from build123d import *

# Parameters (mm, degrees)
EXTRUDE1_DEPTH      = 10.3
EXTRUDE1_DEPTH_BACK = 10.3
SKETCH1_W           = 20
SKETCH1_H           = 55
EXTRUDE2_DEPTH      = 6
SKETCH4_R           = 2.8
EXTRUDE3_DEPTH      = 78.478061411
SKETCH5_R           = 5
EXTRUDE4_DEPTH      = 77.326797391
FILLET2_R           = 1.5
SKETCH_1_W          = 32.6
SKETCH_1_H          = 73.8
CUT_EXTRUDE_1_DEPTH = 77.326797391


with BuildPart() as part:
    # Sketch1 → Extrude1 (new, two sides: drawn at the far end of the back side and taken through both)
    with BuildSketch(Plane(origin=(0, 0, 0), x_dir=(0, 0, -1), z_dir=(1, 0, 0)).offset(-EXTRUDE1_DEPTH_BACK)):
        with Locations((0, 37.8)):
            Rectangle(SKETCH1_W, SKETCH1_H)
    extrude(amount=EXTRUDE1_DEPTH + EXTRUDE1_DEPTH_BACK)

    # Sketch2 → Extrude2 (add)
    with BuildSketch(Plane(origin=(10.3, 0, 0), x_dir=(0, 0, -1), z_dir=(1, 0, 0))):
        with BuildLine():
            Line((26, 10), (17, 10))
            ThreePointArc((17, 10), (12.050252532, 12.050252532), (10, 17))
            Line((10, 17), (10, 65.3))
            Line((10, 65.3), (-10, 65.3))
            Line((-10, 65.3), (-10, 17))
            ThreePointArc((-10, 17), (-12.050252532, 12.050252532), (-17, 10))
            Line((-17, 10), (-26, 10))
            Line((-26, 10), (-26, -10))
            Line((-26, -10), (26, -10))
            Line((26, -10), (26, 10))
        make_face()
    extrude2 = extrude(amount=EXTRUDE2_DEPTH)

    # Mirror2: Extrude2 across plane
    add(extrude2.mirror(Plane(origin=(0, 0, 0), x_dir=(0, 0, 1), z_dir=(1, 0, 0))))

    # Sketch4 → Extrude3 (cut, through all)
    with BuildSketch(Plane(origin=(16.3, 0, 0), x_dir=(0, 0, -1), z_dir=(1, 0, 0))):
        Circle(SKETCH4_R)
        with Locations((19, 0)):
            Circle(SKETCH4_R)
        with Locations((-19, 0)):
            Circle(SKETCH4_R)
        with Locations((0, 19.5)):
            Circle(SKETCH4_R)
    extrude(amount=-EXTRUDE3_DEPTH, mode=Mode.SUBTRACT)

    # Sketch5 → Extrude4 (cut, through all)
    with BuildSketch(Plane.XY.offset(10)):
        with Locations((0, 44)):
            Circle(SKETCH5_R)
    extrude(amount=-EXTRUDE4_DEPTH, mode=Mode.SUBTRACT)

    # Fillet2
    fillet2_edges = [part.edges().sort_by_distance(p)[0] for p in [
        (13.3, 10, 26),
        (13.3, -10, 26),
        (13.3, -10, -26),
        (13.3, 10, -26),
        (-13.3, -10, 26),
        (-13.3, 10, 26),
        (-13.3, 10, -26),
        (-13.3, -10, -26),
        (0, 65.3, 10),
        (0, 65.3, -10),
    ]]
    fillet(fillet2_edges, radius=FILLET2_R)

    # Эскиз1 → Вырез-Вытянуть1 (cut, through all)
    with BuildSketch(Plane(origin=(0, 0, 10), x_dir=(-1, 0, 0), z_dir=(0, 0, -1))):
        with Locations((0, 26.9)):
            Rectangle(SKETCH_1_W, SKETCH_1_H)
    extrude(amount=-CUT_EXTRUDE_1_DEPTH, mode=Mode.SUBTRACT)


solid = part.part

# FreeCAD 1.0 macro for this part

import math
import FreeCAD as App
import Part
import Sketcher
Q = App.Units.Quantity


def edges_at(feature, points):
    """Names of the edges that pass closest to the given points."""
    edges = feature.Shape.Edges
    near = lambda p: min(range(len(edges)), key=lambda i: edges[i].distToShape(Part.Vertex(*p))[0])
    return sorted({f"Edge{near(p) + 1}" for p in points})

doc = App.newDocument("Part")
body = doc.addObject("PartDesign::Body", "Body")

sketch1 = body.newObject("Sketcher::SketchObject", "Sketch")
sketch1.AttachmentSupport = (doc.getObject("YZ_Plane"), [""])
sketch1.MapMode = "FlatFace"
sketch1.addGeometry([
    Part.LineSegment(App.Vector(65, 10, 0), App.Vector(10, 10, 0)),
    Part.LineSegment(App.Vector(10, 10, 0), App.Vector(10, -10, 0)),
    Part.LineSegment(App.Vector(10, -10, 0), App.Vector(65, -10, 0)),
    Part.LineSegment(App.Vector(65, -10, 0), App.Vector(65, 10, 0)),
], False)
sketch1.addConstraint([
    Sketcher.Constraint("Coincident", 0, 2, 1, 1),
    Sketcher.Constraint("Coincident", 1, 2, 2, 1),
    Sketcher.Constraint("Coincident", 2, 2, 3, 1),
    Sketcher.Constraint("Coincident", 3, 2, 0, 1),
    Sketcher.Constraint("Horizontal", 0),
    Sketcher.Constraint("Vertical", 1),
    Sketcher.Constraint("Horizontal", 2),
    Sketcher.Constraint("Vertical", 3),
    Sketcher.Constraint("DistanceX", 0, 2, 0, 1, Q("55 mm")),
    Sketcher.Constraint("DistanceY", 1, 2, 1, 1, Q("20 mm")),
    Sketcher.Constraint("DistanceY", -1, 1, 0, 2, Q("10 mm")),
    Sketcher.Constraint("DistanceX", -1, 1, 0, 2, Q("10.3 mm")),
])
pad1 = body.newObject("PartDesign::Pad", "Pad")
pad1.Profile = sketch1
pad1.Type = "TwoLengths"
pad1.Length = 10.3
pad1.Length2 = 10.3

sketch2 = body.newObject("Sketcher::SketchObject", "Sketch001")
sketch2.AttachmentSupport = (doc.getObject("YZ_Plane"), [""])
sketch2.MapMode = "FlatFace"
sketch2.AttachmentOffset = App.Placement(App.Vector(0, 0, 10.3), App.Rotation())
sketch2.addGeometry([
    Part.LineSegment(App.Vector(10, -26, 0), App.Vector(10, -17, 0)),
    Part.ArcOfCircle(Part.Circle(App.Vector(17, -17, 0), App.Vector(0, 0, 1), 7), math.radians(90), math.radians(180)),
    Part.LineSegment(App.Vector(17, -10, 0), App.Vector(65, -10, 0)),
    Part.LineSegment(App.Vector(65, -10, 0), App.Vector(65, 10, 0)),
    Part.LineSegment(App.Vector(65, 10, 0), App.Vector(17, 10, 0)),
    Part.ArcOfCircle(Part.Circle(App.Vector(17, 17, 0), App.Vector(0, 0, 1), 7), math.radians(-180), math.radians(-90)),
    Part.LineSegment(App.Vector(10, 17, 0), App.Vector(10, 26, 0)),
    Part.LineSegment(App.Vector(10, 26, 0), App.Vector(-10, 26, 0)),
    Part.LineSegment(App.Vector(-10, 26, 0), App.Vector(-10, -26, 0)),
    Part.LineSegment(App.Vector(-10, -26, 0), App.Vector(10, -26, 0)),
], False)
sketch2.addConstraint([
    Sketcher.Constraint("Tangent", 0, 2, 1, 2),
    Sketcher.Constraint("Tangent", 1, 1, 2, 1),
    Sketcher.Constraint("Coincident", 2, 2, 3, 1),
    Sketcher.Constraint("Coincident", 3, 2, 4, 1),
    Sketcher.Constraint("Tangent", 4, 2, 5, 2),
    Sketcher.Constraint("Tangent", 5, 1, 6, 1),
    Sketcher.Constraint("Coincident", 6, 2, 7, 1),
    Sketcher.Constraint("Coincident", 7, 2, 8, 1),
    Sketcher.Constraint("Coincident", 8, 2, 9, 1),
    Sketcher.Constraint("Coincident", 9, 2, 0, 1),
    Sketcher.Constraint("Vertical", 0),
    Sketcher.Constraint("Horizontal", 2),
    Sketcher.Constraint("Vertical", 3),
    Sketcher.Constraint("Horizontal", 4),
    Sketcher.Constraint("Vertical", 6),
    Sketcher.Constraint("Horizontal", 7),
    Sketcher.Constraint("Vertical", 8),
    Sketcher.Constraint("Horizontal", 9),
    Sketcher.Constraint("Equal", 1, 5),
    Sketcher.Constraint("Symmetric", 6, 2, 8, 2, -1, 1),
    Sketcher.Constraint("Symmetric", 1, 3, 5, 3, -1),
    Sketcher.Constraint("Equal", 9, 3),
    Sketcher.Constraint("Radius", 1, Q("7 mm")),
    Sketcher.Constraint("DistanceX", 7, 2, 7, 1, Q("20 mm")),
    Sketcher.Constraint("DistanceY", 0, 1, 0, 2, Q("9 mm")),
    Sketcher.Constraint("DistanceX", 2, 1, 2, 2, Q("48.3 mm")),
])
pad2 = body.newObject("PartDesign::Pad", "Pad001")
pad2.Profile = sketch2
pad2.Length = 6
doc.recompute()

mirrored = body.newObject("PartDesign::Mirrored", "Mirrored")
mirrored.Originals = [pad2]
mirrored.MirrorPlane = (doc.getObject("YZ_Plane"), [""])
body.Tip = mirrored

sketch3 = body.newObject("Sketcher::SketchObject", "Sketch002")
sketch3.AttachmentSupport = (doc.getObject("YZ_Plane"), [""])
sketch3.MapMode = "FlatFace"
sketch3.AttachmentOffset = App.Placement(App.Vector(0, 0, 16.3), App.Rotation())
sketch3.addGeometry([
    Part.Circle(App.Vector(0, 0, 0), App.Vector(0, 0, 1), 2.8),
    Part.Circle(App.Vector(0, -19, 0), App.Vector(0, 0, 1), 2.8),
    Part.Circle(App.Vector(0, 19, 0), App.Vector(0, 0, 1), 2.8),
    Part.Circle(App.Vector(19.5, 0, 0), App.Vector(0, 0, 1), 2.8),
], False)
sketch3.addConstraint([
    Sketcher.Constraint("Coincident", 0, 3, -1, 1),
    Sketcher.Constraint("Equal", 0, 1),
    Sketcher.Constraint("Equal", 1, 2),
    Sketcher.Constraint("Equal", 2, 3),
    Sketcher.Constraint("Symmetric", 1, 3, 2, 3, -1, 1),
    Sketcher.Constraint("PointOnObject", 1, 3, -2),
    Sketcher.Constraint("PointOnObject", 3, 3, -1),
    Sketcher.Constraint("Diameter", 0, Q("5.6 mm")),
    Sketcher.Constraint("DistanceY", 1, 3, -1, 1, Q("19 mm")),
    Sketcher.Constraint("DistanceX", -1, 1, 3, 3, Q("19.5 mm")),
])
pocket1 = body.newObject("PartDesign::Pocket", "Pocket")
pocket1.Profile = sketch3
pocket1.Type = "ThroughAll"

sketch4 = body.newObject("Sketcher::SketchObject", "Sketch003")
sketch4.AttachmentSupport = (doc.getObject("XY_Plane"), [""])
sketch4.MapMode = "FlatFace"
sketch4.AttachmentOffset = App.Placement(App.Vector(0, 0, 10), App.Rotation())
sketch4.addGeometry(Part.Circle(App.Vector(0, 44, 0), App.Vector(0, 0, 1), 5), False)
sketch4.addConstraint([
    Sketcher.Constraint("PointOnObject", 0, 3, -2),
    Sketcher.Constraint("Diameter", 0, Q("10 mm")),
    Sketcher.Constraint("DistanceY", -1, 1, 0, 3, Q("44 mm")),
])
pocket2 = body.newObject("PartDesign::Pocket", "Pocket001")
pocket2.Profile = sketch4
pocket2.Type = "ThroughAll"
doc.recompute()

fillet = body.newObject("PartDesign::Fillet", "Fillet")
fillet.Base = (pocket2, edges_at(pocket2, [
    (13.3, 10, 26),
    (13.3, -10, 26),
    (13.3, -10, -26),
    (13.3, 10, -26),
    (-13.3, -10, 26),
    (-13.3, 10, 26),
    (-13.3, 10, -26),
    (-13.3, -10, -26),
    (0, 65.3, 10),
    (0, 65.3, -10),
]))
fillet.Radius = 1.5

sketch5 = body.newObject("Sketcher::SketchObject", "Sketch004")
sketch5.AttachmentSupport = (doc.getObject("XY_Plane"), [""])
sketch5.MapMode = "FlatFace"
sketch5.AttachmentOffset = App.Placement(App.Vector(0, 0, 10), App.Rotation())
sketch5.addGeometry([
    Part.LineSegment(App.Vector(16, 64, 0), App.Vector(16, -10, 0)),
    Part.LineSegment(App.Vector(16, -10, 0), App.Vector(-16, -10, 0)),
    Part.LineSegment(App.Vector(-16, -10, 0), App.Vector(-16, 64, 0)),
    Part.LineSegment(App.Vector(-16, 64, 0), App.Vector(16, 64, 0)),
], False)
sketch5.addConstraint([
    Sketcher.Constraint("Coincident", 0, 2, 1, 1),
    Sketcher.Constraint("Coincident", 1, 2, 2, 1),
    Sketcher.Constraint("Coincident", 2, 2, 3, 1),
    Sketcher.Constraint("Coincident", 3, 2, 0, 1),
    Sketcher.Constraint("Vertical", 0),
    Sketcher.Constraint("Horizontal", 1),
    Sketcher.Constraint("Vertical", 2),
    Sketcher.Constraint("Horizontal", 3),
    Sketcher.Constraint("DistanceX", 1, 2, 1, 1, Q("32.6 mm")),
    Sketcher.Constraint("DistanceY", 0, 2, 0, 1, Q("73.8 mm")),
    Sketcher.Constraint("DistanceY", 0, 2, -1, 1, Q("10 mm")),
    Sketcher.Constraint("DistanceX", -1, 1, 0, 2, Q("16.3 mm")),
])
pocket3 = body.newObject("PartDesign::Pocket", "Pocket002")
pocket3.Profile = sketch5
pocket3.Type = "ThroughAll"
pocket3.Reversed = True

doc.recompute()
